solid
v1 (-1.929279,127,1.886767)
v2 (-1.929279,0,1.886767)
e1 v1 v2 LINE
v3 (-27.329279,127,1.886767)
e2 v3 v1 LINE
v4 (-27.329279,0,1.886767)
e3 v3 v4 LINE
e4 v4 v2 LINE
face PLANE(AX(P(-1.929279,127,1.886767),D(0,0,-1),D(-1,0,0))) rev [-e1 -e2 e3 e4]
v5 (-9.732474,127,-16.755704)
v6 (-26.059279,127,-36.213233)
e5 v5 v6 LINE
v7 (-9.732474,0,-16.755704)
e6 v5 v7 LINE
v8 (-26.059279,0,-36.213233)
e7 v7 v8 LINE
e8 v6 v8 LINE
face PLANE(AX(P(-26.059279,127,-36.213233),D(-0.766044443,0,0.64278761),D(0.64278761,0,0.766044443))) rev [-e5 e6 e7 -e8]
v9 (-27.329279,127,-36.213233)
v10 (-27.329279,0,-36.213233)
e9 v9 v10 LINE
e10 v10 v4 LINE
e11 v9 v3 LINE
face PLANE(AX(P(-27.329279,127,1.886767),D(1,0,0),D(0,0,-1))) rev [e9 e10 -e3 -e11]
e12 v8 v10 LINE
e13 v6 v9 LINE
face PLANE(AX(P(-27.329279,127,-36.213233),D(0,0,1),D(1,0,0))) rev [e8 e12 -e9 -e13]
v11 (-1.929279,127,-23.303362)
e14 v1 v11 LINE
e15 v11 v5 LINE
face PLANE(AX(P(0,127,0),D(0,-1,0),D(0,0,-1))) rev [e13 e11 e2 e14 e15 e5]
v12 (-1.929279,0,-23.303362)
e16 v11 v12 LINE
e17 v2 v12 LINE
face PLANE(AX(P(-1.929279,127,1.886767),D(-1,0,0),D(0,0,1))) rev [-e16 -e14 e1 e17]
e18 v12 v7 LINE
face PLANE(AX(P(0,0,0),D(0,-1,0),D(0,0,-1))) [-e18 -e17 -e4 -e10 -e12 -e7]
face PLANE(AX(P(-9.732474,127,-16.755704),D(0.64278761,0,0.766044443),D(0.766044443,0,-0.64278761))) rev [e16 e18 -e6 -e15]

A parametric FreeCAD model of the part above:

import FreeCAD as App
import Part
import Sketcher

V = App.Vector
Q = App.Units.Quantity

doc = App.newDocument("Part")
body = doc.addObject("PartDesign::Body", "Body")

sketch1 = body.newObject("Sketcher::SketchObject", "Sketch")
sketch1.AttachmentSupport = (doc.getObject("XZ_Plane"), [""])
sketch1.MapMode = "FlatFace"
sketch1.addGeometry([
    Part.LineSegment(V(-9.7, -16.8, 0), V(-26.1, -36.2, 0)),
    Part.LineSegment(V(-26.1, -36.2, 0), V(-27.3, -36.2, 0)),
    Part.LineSegment(V(-27.3, -36.2, 0), V(-27.3, 1.9, 0)),
    Part.LineSegment(V(-27.3, 1.9, 0), V(-1.9, 1.9, 0)),
    Part.LineSegment(V(-1.9, 1.9, 0), V(-1.9, -23.3, 0)),
    Part.LineSegment(V(-1.9, -23.3, 0), V(-9.7, -16.8, 0)),
], False)
sketch1.addConstraint([
    Sketcher.Constraint("Coincident", 0, 2, 1, 1),
    Sketcher.Constraint("Coincident", 1, 2, 2, 1),
    Sketcher.Constraint("Coincident", 2, 2, 3, 1),
    Sketcher.Constraint("Coincident", 3, 2, 4, 1),
    Sketcher.Constraint("Coincident", 4, 2, 5, 1),
    Sketcher.Constraint("Coincident", 5, 2, 0, 1),
    Sketcher.Constraint("Horizontal", 1),
    Sketcher.Constraint("Vertical", 2),
    Sketcher.Constraint("Horizontal", 3),
    Sketcher.Constraint("Vertical", 4),
    Sketcher.Constraint("Perpendicular", 0, 5),
    Sketcher.Constraint("DistanceX", 3, 1, 3, 2, Q("1 in")),
    Sketcher.Constraint("Distance", 0, Q("1 in")),
    Sketcher.Constraint("DistanceY", 2, 1, 2, 2, Q("1.5 in")),
    Sketcher.Constraint("Angle", 0, Q("-130 deg")),
    Sketcher.Constraint("DistanceX", 1, 2, 1, 1, Q("0.05 in")),
    Sketcher.Constraint("DistanceX", 0, 2, -1, 1, 26.059279),
    Sketcher.Constraint("DistanceY", 0, 2, -1, 1, 36.213233),
])
pad1 = body.newObject("PartDesign::Pad", "Pad")
pad1.Profile = sketch1
pad1.Length = Q("5 in")
pad1.Reversed = True

doc.recompute()
